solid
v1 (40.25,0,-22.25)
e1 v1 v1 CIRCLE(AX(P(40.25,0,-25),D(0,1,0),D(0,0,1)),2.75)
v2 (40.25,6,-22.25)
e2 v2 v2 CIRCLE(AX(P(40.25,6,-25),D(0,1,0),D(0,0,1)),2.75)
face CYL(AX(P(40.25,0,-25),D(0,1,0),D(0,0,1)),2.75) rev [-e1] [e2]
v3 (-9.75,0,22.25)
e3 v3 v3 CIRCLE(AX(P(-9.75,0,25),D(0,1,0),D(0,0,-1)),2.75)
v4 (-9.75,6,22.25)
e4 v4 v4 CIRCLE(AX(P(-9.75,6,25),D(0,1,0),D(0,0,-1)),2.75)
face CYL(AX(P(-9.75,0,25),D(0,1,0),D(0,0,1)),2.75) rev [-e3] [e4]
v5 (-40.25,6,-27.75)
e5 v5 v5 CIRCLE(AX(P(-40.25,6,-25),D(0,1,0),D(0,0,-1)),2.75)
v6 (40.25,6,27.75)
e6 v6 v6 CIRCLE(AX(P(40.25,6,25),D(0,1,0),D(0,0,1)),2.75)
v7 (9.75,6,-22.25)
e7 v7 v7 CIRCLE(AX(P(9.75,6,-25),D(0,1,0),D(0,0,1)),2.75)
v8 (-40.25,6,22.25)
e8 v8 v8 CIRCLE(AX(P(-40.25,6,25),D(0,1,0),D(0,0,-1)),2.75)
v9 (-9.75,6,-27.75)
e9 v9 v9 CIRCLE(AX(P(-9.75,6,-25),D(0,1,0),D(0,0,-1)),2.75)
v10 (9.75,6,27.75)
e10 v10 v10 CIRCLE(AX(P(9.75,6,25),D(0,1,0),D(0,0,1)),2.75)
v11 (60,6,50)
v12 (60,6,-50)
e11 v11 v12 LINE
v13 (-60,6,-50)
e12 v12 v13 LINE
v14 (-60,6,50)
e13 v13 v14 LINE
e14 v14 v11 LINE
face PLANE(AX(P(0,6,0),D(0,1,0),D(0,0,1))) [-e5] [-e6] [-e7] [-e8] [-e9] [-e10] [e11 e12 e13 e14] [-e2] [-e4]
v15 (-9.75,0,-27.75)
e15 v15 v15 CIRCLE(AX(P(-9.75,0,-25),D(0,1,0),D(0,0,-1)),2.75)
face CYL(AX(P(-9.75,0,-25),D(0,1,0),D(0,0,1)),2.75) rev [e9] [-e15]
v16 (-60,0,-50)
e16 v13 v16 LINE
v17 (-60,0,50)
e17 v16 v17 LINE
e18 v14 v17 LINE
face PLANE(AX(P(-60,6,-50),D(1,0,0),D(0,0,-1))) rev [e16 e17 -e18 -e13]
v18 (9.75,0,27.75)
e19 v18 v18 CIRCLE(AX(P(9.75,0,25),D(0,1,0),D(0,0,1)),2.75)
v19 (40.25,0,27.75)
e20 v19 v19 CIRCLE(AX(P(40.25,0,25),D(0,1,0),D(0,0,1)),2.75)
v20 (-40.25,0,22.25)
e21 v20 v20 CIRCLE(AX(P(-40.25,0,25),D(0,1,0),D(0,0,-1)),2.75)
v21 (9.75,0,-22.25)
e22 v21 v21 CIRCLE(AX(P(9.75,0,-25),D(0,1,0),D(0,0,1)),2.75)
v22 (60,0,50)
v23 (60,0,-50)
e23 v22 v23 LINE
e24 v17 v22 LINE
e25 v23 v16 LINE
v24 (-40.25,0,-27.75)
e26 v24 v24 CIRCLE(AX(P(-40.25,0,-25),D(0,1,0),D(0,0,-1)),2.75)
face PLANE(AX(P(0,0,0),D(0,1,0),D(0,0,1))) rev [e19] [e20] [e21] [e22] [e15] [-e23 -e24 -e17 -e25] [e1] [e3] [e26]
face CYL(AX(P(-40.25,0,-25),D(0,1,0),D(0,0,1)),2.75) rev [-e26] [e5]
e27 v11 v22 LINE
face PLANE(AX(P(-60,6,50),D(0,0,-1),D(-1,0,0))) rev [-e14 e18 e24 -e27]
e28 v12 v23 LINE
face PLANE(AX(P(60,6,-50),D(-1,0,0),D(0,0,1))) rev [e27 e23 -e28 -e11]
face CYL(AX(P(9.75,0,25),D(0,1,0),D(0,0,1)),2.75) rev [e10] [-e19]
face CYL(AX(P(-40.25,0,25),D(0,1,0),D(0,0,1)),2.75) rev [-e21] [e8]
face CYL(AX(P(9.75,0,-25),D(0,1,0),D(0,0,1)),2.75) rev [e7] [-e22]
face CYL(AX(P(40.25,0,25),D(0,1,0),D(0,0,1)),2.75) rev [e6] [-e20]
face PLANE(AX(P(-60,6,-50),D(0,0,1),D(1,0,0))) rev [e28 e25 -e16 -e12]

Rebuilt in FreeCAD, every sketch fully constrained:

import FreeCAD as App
import Part
import Sketcher


def add_polygon(sketch, points):
    """Adds a closed chain of lines whose ends are joined by coincident constraints."""
    first, n = sketch.GeometryCount, len(points)
    for a, b in zip(points, points[1:] + points[:1]):
        sketch.addGeometry(Part.LineSegment(App.Vector(*a, 0), App.Vector(*b, 0)), False)
    for i in range(n):
        sketch.addConstraint(Sketcher.Constraint("Coincident", first + i, 2, first + (i + 1) % n, 1))

doc = App.newDocument("Part")
params = doc.addObject("Spreadsheet::Sheet", "Params")
for row, (alias, value) in enumerate([
    ("sketch1_width", "120 mm"),
    ("sketch1_height", "100 mm"),
    ("pad1_length", "6 mm"),
    ("sketch2_diameter", "5.5 mm"),
], start=1):
    params.set(f"A{row}", alias)
    params.set(f"B{row}", "=" + value)
    params.setAlias(f"B{row}", alias)

body = doc.addObject("PartDesign::Body", "Body")

sketch1 = doc.addObject("Sketcher::SketchObject", "Sketch")
body.addObject(sketch1)
sketch1.AttachmentSupport = (doc.XZ_Plane, [""])
sketch1.MapMode = "FlatFace"
add_polygon(sketch1, [(-60, -50), (-60, 50), (60, 50), (60, -50)])
sketch1.addConstraint(Sketcher.Constraint("Vertical", 0))
sketch1.addConstraint(Sketcher.Constraint("Horizontal", 1))
sketch1.addConstraint(Sketcher.Constraint("Vertical", 2))
sketch1.addConstraint(Sketcher.Constraint("Horizontal", 3))
sketch1.addConstraint(Sketcher.Constraint("Symmetric", 0, 2, 2, 2, -1, 1))
sketch1.addConstraint(Sketcher.Constraint("DistanceX", 1, 1, 1, 2, 120.0))
sketch1.addConstraint(Sketcher.Constraint("DistanceY", 0, 1, 0, 2, 100.0))
sketch1.setExpression("Constraints[9]", "Params.sketch1_width")
sketch1.setExpression("Constraints[10]", "Params.sketch1_height")
pad1 = doc.addObject("PartDesign::Pad", "Pad")
body.addObject(pad1)
pad1.Profile = sketch1
pad1.setExpression("Length", "Params.pad1_length")
pad1.Reversed = True

sketch2 = doc.addObject("Sketcher::SketchObject", "Sketch001")
body.addObject(sketch2)
sketch2.AttachmentSupport = (doc.XZ_Plane, [""])
sketch2.MapMode = "FlatFace"
sketch2.AttachmentOffset = App.Placement(App.Vector(0, 0, -6), App.Rotation())
sketch2.addGeometry(Part.Circle(App.Vector(9.75, -25, 0), App.Vector(0, 0, 1), 2.75), False)
sketch2.addGeometry(Part.Circle(App.Vector(40.25, -25, 0), App.Vector(0, 0, 1), 2.75), False)
sketch2.addGeometry(Part.Circle(App.Vector(9.75, 25, 0), App.Vector(0, 0, 1), 2.75), False)
sketch2.addGeometry(Part.Circle(App.Vector(40.25, 25, 0), App.Vector(0, 0, 1), 2.75), False)
sketch2.addGeometry(Part.Circle(App.Vector(-40.25, 25, 0), App.Vector(0, 0, 1), 2.75), False)
sketch2.addGeometry(Part.Circle(App.Vector(-9.75, 25, 0), App.Vector(0, 0, 1), 2.75), False)
sketch2.addGeometry(Part.Circle(App.Vector(-40.25, -25, 0), App.Vector(0, 0, 1), 2.75), False)
sketch2.addGeometry(Part.Circle(App.Vector(-9.75, -25, 0), App.Vector(0, 0, 1), 2.75), False)
sketch2.addConstraint(Sketcher.Constraint("Equal", 0, 1))
sketch2.addConstraint(Sketcher.Constraint("Equal", 1, 2))
sketch2.addConstraint(Sketcher.Constraint("Equal", 2, 3))
sketch2.addConstraint(Sketcher.Constraint("Equal", 3, 4))
sketch2.addConstraint(Sketcher.Constraint("Equal", 4, 5))
sketch2.addConstraint(Sketcher.Constraint("Equal", 5, 6))
sketch2.addConstraint(Sketcher.Constraint("Equal", 6, 7))
sketch2.addConstraint(Sketcher.Constraint("Symmetric", 1, 3, 4, 3, -1, 1))
sketch2.addConstraint(Sketcher.Constraint("Symmetric", 0, 3, 5, 3, -1, 1))
sketch2.addConstraint(Sketcher.Constraint("Symmetric", 3, 3, 6, 3, -1, 1))
sketch2.addConstraint(Sketcher.Constraint("Symmetric", 2, 3, 7, 3, -1, 1))
sketch2.addConstraint(Sketcher.Constraint("Symmetric", 3, 3, 4, 3, -2))
sketch2.addConstraint(Sketcher.Constraint("Symmetric", 2, 3, 5, 3, -2))
sketch2.addConstraint(Sketcher.Constraint("Horizontal", 0, 3, 1, 3))
sketch2.addConstraint(Sketcher.Constraint("Diameter", 0, 5.5))
sketch2.addConstraint(Sketcher.Constraint("DistanceY", 0, 3, -1, 1, 25.0))
sketch2.addConstraint(Sketcher.Constraint("DistanceX", 4, 3, 2, 3, 50.0))
sketch2.addConstraint(Sketcher.Constraint("DistanceX", 0, 3, 1, 3, 30.5))
sketch2.setExpression("Constraints[14]", "Params.sketch2_diameter")
pocket1 = doc.addObject("PartDesign::Pocket", "Pocket")
body.addObject(pocket1)
pocket1.Profile = sketch2
pocket1.Type = "ThroughAll"
pocket1.Reversed = True

doc.recompute()
